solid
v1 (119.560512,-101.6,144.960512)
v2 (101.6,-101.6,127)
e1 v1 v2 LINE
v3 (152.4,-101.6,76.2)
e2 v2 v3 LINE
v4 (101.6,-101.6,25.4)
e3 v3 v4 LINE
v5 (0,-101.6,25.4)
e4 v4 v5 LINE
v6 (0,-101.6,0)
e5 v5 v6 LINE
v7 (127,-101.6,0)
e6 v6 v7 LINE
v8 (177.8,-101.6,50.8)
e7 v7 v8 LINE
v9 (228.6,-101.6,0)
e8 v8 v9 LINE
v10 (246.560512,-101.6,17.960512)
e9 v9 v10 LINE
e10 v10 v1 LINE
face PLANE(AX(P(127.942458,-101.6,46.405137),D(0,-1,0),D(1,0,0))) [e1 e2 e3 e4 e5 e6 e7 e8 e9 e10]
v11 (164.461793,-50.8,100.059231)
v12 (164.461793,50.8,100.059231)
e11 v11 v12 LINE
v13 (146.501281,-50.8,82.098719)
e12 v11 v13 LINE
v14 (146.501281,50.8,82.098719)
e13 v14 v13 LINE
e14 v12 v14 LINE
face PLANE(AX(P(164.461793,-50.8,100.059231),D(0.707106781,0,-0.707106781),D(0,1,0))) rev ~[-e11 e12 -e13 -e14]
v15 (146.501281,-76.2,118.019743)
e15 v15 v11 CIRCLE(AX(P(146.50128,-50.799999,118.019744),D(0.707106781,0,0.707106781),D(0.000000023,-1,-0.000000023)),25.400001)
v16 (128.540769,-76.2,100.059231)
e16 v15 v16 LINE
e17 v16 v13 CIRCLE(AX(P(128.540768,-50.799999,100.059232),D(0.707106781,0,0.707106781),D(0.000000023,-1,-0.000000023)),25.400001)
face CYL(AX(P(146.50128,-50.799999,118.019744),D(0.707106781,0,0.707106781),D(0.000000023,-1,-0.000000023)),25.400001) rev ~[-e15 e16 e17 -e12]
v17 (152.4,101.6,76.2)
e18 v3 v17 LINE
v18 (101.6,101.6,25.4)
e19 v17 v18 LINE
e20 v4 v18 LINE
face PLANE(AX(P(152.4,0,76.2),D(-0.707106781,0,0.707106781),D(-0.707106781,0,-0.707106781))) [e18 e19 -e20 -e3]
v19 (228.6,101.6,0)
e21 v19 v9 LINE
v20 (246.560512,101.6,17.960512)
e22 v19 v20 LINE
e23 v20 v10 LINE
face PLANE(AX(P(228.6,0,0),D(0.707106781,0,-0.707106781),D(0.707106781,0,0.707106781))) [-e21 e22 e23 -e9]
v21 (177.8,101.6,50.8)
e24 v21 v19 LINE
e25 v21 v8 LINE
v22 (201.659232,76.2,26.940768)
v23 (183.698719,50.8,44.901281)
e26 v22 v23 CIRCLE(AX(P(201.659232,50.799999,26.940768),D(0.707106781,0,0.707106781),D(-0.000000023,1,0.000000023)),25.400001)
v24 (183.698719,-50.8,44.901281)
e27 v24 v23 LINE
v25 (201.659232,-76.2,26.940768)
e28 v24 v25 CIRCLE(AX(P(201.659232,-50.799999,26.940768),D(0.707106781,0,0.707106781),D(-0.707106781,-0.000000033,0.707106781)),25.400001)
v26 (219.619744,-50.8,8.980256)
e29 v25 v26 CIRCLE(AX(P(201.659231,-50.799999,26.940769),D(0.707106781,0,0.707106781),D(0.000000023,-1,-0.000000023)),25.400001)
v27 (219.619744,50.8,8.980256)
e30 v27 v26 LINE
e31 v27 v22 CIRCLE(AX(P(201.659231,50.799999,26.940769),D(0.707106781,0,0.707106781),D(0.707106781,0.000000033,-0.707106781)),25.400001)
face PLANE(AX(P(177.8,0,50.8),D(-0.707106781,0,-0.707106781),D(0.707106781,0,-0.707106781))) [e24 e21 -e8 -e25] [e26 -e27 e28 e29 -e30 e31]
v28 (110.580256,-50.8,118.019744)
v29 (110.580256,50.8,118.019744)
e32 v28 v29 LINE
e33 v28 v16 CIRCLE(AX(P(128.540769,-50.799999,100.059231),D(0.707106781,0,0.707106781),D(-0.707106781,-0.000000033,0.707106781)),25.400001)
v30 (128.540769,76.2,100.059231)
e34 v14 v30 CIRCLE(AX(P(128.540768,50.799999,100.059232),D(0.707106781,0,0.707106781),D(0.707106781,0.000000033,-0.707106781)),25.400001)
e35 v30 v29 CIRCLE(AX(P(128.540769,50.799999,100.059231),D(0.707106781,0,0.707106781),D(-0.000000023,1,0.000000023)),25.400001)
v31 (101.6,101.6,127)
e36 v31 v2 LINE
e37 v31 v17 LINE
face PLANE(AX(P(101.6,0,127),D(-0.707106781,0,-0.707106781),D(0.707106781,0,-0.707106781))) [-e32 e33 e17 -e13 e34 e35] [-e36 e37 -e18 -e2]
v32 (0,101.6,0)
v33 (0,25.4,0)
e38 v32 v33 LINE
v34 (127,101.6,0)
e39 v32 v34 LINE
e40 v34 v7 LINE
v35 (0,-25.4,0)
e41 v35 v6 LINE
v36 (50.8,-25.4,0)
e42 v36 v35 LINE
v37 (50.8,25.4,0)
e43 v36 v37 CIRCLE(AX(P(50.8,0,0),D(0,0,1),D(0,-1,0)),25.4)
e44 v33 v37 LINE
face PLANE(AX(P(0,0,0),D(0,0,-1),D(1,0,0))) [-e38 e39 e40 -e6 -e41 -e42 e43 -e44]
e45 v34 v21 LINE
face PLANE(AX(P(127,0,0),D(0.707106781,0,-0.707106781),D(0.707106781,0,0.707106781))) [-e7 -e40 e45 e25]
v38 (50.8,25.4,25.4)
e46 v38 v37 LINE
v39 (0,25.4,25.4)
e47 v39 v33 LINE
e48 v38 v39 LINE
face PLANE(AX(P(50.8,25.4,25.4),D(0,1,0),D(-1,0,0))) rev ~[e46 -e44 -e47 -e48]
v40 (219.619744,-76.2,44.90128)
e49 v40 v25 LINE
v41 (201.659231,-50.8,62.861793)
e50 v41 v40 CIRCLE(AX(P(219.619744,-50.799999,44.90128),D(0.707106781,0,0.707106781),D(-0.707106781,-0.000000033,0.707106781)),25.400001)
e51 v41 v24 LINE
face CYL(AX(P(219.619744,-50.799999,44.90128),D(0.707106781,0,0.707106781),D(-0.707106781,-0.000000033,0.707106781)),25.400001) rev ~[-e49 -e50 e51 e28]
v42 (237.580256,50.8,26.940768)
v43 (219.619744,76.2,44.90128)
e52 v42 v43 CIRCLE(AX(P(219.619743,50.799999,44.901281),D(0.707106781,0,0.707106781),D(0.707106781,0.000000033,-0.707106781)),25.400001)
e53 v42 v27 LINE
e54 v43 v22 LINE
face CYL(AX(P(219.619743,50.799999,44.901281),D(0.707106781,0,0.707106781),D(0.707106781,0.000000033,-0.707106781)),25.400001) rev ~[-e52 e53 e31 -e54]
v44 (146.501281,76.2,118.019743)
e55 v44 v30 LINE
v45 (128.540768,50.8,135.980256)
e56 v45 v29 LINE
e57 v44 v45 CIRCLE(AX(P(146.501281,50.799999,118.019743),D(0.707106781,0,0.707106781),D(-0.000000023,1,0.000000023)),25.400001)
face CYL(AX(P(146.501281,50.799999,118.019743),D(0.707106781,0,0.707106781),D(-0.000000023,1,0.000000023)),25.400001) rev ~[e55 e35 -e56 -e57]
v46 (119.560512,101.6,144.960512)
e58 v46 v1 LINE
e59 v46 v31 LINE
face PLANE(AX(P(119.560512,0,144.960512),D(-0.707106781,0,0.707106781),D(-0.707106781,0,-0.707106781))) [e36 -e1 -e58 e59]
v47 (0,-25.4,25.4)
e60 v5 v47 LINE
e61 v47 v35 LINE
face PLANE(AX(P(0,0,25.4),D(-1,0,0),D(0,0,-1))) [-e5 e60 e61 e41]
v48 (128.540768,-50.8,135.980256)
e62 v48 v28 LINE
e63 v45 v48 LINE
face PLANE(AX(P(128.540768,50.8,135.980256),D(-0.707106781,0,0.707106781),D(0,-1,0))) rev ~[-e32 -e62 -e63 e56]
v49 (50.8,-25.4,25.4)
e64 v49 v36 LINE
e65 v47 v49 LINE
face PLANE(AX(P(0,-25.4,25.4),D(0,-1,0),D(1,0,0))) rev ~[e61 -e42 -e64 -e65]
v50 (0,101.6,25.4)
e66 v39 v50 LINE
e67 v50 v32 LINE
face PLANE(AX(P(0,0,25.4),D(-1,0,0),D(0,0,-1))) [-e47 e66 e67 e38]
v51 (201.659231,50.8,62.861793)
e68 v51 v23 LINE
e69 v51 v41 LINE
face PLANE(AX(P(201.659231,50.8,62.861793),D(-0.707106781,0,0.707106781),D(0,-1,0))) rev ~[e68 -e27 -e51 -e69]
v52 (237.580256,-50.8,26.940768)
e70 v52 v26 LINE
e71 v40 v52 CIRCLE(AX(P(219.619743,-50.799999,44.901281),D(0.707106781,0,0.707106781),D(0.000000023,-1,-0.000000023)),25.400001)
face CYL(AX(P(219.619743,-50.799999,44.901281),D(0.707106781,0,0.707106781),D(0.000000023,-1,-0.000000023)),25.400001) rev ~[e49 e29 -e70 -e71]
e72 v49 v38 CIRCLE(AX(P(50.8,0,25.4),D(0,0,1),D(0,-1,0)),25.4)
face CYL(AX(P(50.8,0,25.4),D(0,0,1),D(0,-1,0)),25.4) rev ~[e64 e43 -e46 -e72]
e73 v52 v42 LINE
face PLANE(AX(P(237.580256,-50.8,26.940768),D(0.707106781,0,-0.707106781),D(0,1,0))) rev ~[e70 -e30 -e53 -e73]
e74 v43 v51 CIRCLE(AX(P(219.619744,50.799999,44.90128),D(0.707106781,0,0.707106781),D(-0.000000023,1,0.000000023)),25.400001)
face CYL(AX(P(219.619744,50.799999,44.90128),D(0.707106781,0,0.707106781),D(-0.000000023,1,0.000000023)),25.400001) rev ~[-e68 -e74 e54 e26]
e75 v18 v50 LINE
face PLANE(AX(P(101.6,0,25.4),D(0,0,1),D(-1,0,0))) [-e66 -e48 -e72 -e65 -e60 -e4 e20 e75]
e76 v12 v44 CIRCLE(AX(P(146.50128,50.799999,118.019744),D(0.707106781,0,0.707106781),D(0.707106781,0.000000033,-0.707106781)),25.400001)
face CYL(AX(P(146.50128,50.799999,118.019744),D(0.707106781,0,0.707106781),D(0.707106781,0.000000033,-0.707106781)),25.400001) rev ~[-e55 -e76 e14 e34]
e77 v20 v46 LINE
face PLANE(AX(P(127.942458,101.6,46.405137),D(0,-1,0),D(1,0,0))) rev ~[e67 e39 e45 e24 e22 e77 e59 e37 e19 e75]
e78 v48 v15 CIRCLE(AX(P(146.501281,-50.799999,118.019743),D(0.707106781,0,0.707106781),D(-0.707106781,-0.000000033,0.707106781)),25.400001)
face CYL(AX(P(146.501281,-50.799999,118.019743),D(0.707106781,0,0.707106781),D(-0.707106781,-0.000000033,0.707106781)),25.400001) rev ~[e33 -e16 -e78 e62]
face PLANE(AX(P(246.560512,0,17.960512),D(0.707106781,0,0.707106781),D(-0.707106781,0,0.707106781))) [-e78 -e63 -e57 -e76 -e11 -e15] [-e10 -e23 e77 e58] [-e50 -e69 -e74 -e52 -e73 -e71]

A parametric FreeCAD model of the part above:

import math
import FreeCAD as App
import Part
import Sketcher
from FreeCAD import Vector
Q = App.Units.Quantity


def add_polygon(sketch, points):
    """Adds a closed chain of lines whose ends are joined by coincident constraints."""
    first, n = sketch.GeometryCount, len(points)
    for a, b in zip(points, points[1:] + points[:1]):
        sketch.addGeometry(Part.LineSegment(App.Vector(*a, 0), App.Vector(*b, 0)), False)
    for i in range(n):
        sketch.addConstraint(Sketcher.Constraint("Coincident", first + i, 2, first + (i + 1) % n, 1))

doc = App.newDocument("Part")
body = doc.addObject("PartDesign::Body", "Body")

sketch1 = body.newObject("Sketcher::SketchObject", "Sketch")
sketch1.AttachmentSupport = (doc.getObject("XZ_Plane"), [""])
sketch1.MapMode = "FlatFace"
add_polygon(sketch1, [(0, 25.4), (0, 0), (127, 0), (177.8, 50.8), (228.6, 0), (246.560512, 17.960512), (119.560512, 144.960512), (101.6, 127), (152.4, 76.2), (101.6, 25.4)])
sketch1.addConstraint(Sketcher.Constraint("Vertical", 0))
sketch1.addConstraint(Sketcher.Constraint("Horizontal", 1))
sketch1.addConstraint(Sketcher.Constraint("Horizontal", 9))
sketch1.addConstraint(Sketcher.Constraint("Coincident", 0, 2, -1, 1))
sketch1.addConstraint(Sketcher.Constraint("PointOnObject", 3, 2, -1))
sketch1.addConstraint(Sketcher.Constraint("Perpendicular", 2, 3))
sketch1.addConstraint(Sketcher.Constraint("Perpendicular", 3, 4))
sketch1.addConstraint(Sketcher.Constraint("Perpendicular", 4, 5))
sketch1.addConstraint(Sketcher.Constraint("Perpendicular", 5, 6))
sketch1.addConstraint(Sketcher.Constraint("Perpendicular", 6, 7))
sketch1.addConstraint(Sketcher.Constraint("Perpendicular", 7, 8))
sketch1.addConstraint(Sketcher.Constraint("Vertical", 6, 2, 8, 2))
sketch1.addConstraint(Sketcher.Constraint("Equal", 2, 3))
sketch1.addConstraint(Sketcher.Constraint("Equal", 4, 6))
sketch1.addConstraint(Sketcher.Constraint("Equal", 3, 7))
sketch1.addConstraint(Sketcher.Constraint("DistanceX", 1, 1, 1, 2, Q("5 in")))
sketch1.addConstraint(Sketcher.Constraint("DistanceX", 9, 2, 9, 1, Q("4 in")))
sketch1.addConstraint(Sketcher.Constraint("Distance", 4, Q("1 in")))
sketch1.addConstraint(Sketcher.Constraint("DistanceX", -1, 1, 2, 2, Q("7 in")))
pad1 = body.newObject("PartDesign::Pad", "Pad")
pad1.Profile = sketch1
pad1.Length = Q("8 in")
pad1.Midplane = True

sketch2 = body.newObject("Sketcher::SketchObject", "Sketch001")
sketch2.Placement = App.Placement(Vector(132.260512, 0, 132.260512), App.Rotation(Vector(0.707106781, 0, -0.707106781), Vector(0, 0.999999999, 0), Vector(0.707106781, 0, 0.707106781), "ZXY"))
sketch2.addGeometry(Part.ArcOfCircle(Part.Circle(Vector(123.544609, -50.799999, 0), Vector(0, 0, 1), 25.400001), math.radians(-89.999998), math.radians(-0.000002)), False)
sketch2.addGeometry(Part.LineSegment(Vector(148.94461, -50.8, 0), Vector(148.94461, 50.8, 0)), False)
sketch2.addGeometry(Part.ArcOfCircle(Part.Circle(Vector(123.544609, 50.799999, 0), Vector(0, 0, 1), 25.400001), math.radians(0.000002), math.radians(89.999998)), False)
sketch2.addGeometry(Part.ArcOfCircle(Part.Circle(Vector(123.544611, 50.799999, 0), Vector(0, 0, 1), 25.400001), math.radians(90.000002), math.radians(179.999998)), False)
sketch2.addGeometry(Part.LineSegment(Vector(98.14461, 50.8, 0), Vector(98.14461, -50.8, 0)), False)
sketch2.addGeometry(Part.ArcOfCircle(Part.Circle(Vector(123.544611, -50.799999, 0), Vector(0, 0, 1), 25.400001), math.radians(-179.999998), math.radians(-90.000002)), False)
sketch2.addGeometry(Part.LineSegment(Vector(-5.260512, 50.8, 0), Vector(-5.260512, -50.8, 0)), False)
sketch2.addGeometry(Part.ArcOfCircle(Part.Circle(Vector(20.139489, -50.799999, 0), Vector(0, 0, 1), 25.400001), math.radians(-179.999998), math.radians(-90.000002)), False)
sketch2.addGeometry(Part.ArcOfCircle(Part.Circle(Vector(20.139487, -50.799999, 0), Vector(0, 0, 1), 25.400001), math.radians(-89.999998), math.radians(-0.000002)), False)
sketch2.addGeometry(Part.LineSegment(Vector(45.539488, -50.8, 0), Vector(45.539488, 50.8, 0)), False)
sketch2.addGeometry(Part.ArcOfCircle(Part.Circle(Vector(20.139487, 50.799999, 0), Vector(0, 0, 1), 25.400001), math.radians(0.000002), math.radians(89.999998)), False)
sketch2.addGeometry(Part.ArcOfCircle(Part.Circle(Vector(20.139489, 50.799999, 0), Vector(0, 0, 1), 25.400001), math.radians(90.000002), math.radians(179.999998)), False)
sketch2.addConstraint(Sketcher.Constraint("Tangent", 0, 2, 1, 1))
sketch2.addConstraint(Sketcher.Constraint("Tangent", 1, 2, 2, 1))
sketch2.addConstraint(Sketcher.Constraint("Tangent", 2, 2, 3, 1))
sketch2.addConstraint(Sketcher.Constraint("Tangent", 3, 2, 4, 1))
sketch2.addConstraint(Sketcher.Constraint("Tangent", 4, 2, 5, 1))
sketch2.addConstraint(Sketcher.Constraint("Tangent", 5, 2, 0, 1))
sketch2.addConstraint(Sketcher.Constraint("Tangent", 6, 2, 7, 1))
sketch2.addConstraint(Sketcher.Constraint("Tangent", 7, 2, 8, 1))
sketch2.addConstraint(Sketcher.Constraint("Tangent", 8, 2, 9, 1))
sketch2.addConstraint(Sketcher.Constraint("Tangent", 9, 2, 10, 1))
sketch2.addConstraint(Sketcher.Constraint("Tangent", 10, 2, 11, 1))
sketch2.addConstraint(Sketcher.Constraint("Tangent", 11, 2, 6, 1))
sketch2.addConstraint(Sketcher.Constraint("Vertical", 1))
sketch2.addConstraint(Sketcher.Constraint("Vertical", 4))
sketch2.addConstraint(Sketcher.Constraint("Vertical", 6))
sketch2.addConstraint(Sketcher.Constraint("Vertical", 9))
sketch2.addConstraint(Sketcher.Constraint("Equal", 0, 2))
sketch2.addConstraint(Sketcher.Constraint("Equal", 2, 3))
sketch2.addConstraint(Sketcher.Constraint("Equal", 5, 7))
sketch2.addConstraint(Sketcher.Constraint("Equal", 7, 8))
sketch2.addConstraint(Sketcher.Constraint("Equal", 8, 10))
sketch2.addConstraint(Sketcher.Constraint("Symmetric", 2, 2, 5, 2, -1))
sketch2.addConstraint(Sketcher.Constraint("Symmetric", 7, 2, 10, 2, -1))
sketch2.addConstraint(Sketcher.Constraint("Horizontal", 5, 3, 7, 3))
sketch2.addConstraint(Sketcher.Constraint("Vertical", 5, 3, 2, 2))
sketch2.addConstraint(Sketcher.Constraint("Vertical", 11, 3, 7, 2))
sketch2.addConstraint(Sketcher.Constraint("Radius", 0, Q("1 in")))
sketch2.addConstraint(Sketcher.Constraint("DistanceY", 1, 1, 1, 2, Q("4 in")))
sketch2.addConstraint(Sketcher.Constraint("DistanceX", -1, 1, 0, 3, 123.544609))
sketch2.addConstraint(Sketcher.Constraint("DistanceX", -1, 1, 7, 3, 20.139489))
pocket1 = body.newObject("PartDesign::Pocket", "Pocket")
pocket1.Profile = sketch2
pocket1.Length = Q("2 in")

sketch3 = body.newObject("Sketcher::SketchObject", "Sketch002")
sketch3.AttachmentSupport = (doc.getObject("XY_Plane"), [""])
sketch3.MapMode = "FlatFace"
sketch3.AttachmentOffset = App.Placement(Vector(0, 0, 1 * 25.4), App.Rotation())
sketch3.addGeometry(Part.LineSegment(Vector(0, -25.4, 0), Vector(50.8, -25.4, 0)), False)
sketch3.addGeometry(Part.ArcOfCircle(Part.Circle(Vector(50.8, 0, 0), Vector(0, 0, 1), 25.4), math.radians(-90), math.radians(90)), False)
sketch3.addGeometry(Part.LineSegment(Vector(50.8, 25.4, 0), Vector(0, 25.4, 0)), False)
sketch3.addGeometry(Part.LineSegment(Vector(0, 25.4, 0), Vector(0, -25.4, 0)), False)
sketch3.addConstraint(Sketcher.Constraint("Tangent", 0, 2, 1, 1))
sketch3.addConstraint(Sketcher.Constraint("Tangent", 1, 2, 2, 1))
sketch3.addConstraint(Sketcher.Constraint("Coincident", 2, 2, 3, 1))
sketch3.addConstraint(Sketcher.Constraint("Coincident", 3, 2, 0, 1))
sketch3.addConstraint(Sketcher.Constraint("Horizontal", 0))
sketch3.addConstraint(Sketcher.Constraint("Horizontal", 2))
sketch3.addConstraint(Sketcher.Constraint("Vertical", 3))
sketch3.addConstraint(Sketcher.Constraint("Symmetric", 2, 2, 3, 2, -1, 1))
sketch3.addConstraint(Sketcher.Constraint("Equal", 2, 3))
sketch3.addConstraint(Sketcher.Constraint("Radius", 1, Q("1 in")))
pocket2 = body.newObject("PartDesign::Pocket", "Pocket001")
pocket2.Profile = sketch3
pocket2.Length = Q("1.5 in")

doc.recompute()
